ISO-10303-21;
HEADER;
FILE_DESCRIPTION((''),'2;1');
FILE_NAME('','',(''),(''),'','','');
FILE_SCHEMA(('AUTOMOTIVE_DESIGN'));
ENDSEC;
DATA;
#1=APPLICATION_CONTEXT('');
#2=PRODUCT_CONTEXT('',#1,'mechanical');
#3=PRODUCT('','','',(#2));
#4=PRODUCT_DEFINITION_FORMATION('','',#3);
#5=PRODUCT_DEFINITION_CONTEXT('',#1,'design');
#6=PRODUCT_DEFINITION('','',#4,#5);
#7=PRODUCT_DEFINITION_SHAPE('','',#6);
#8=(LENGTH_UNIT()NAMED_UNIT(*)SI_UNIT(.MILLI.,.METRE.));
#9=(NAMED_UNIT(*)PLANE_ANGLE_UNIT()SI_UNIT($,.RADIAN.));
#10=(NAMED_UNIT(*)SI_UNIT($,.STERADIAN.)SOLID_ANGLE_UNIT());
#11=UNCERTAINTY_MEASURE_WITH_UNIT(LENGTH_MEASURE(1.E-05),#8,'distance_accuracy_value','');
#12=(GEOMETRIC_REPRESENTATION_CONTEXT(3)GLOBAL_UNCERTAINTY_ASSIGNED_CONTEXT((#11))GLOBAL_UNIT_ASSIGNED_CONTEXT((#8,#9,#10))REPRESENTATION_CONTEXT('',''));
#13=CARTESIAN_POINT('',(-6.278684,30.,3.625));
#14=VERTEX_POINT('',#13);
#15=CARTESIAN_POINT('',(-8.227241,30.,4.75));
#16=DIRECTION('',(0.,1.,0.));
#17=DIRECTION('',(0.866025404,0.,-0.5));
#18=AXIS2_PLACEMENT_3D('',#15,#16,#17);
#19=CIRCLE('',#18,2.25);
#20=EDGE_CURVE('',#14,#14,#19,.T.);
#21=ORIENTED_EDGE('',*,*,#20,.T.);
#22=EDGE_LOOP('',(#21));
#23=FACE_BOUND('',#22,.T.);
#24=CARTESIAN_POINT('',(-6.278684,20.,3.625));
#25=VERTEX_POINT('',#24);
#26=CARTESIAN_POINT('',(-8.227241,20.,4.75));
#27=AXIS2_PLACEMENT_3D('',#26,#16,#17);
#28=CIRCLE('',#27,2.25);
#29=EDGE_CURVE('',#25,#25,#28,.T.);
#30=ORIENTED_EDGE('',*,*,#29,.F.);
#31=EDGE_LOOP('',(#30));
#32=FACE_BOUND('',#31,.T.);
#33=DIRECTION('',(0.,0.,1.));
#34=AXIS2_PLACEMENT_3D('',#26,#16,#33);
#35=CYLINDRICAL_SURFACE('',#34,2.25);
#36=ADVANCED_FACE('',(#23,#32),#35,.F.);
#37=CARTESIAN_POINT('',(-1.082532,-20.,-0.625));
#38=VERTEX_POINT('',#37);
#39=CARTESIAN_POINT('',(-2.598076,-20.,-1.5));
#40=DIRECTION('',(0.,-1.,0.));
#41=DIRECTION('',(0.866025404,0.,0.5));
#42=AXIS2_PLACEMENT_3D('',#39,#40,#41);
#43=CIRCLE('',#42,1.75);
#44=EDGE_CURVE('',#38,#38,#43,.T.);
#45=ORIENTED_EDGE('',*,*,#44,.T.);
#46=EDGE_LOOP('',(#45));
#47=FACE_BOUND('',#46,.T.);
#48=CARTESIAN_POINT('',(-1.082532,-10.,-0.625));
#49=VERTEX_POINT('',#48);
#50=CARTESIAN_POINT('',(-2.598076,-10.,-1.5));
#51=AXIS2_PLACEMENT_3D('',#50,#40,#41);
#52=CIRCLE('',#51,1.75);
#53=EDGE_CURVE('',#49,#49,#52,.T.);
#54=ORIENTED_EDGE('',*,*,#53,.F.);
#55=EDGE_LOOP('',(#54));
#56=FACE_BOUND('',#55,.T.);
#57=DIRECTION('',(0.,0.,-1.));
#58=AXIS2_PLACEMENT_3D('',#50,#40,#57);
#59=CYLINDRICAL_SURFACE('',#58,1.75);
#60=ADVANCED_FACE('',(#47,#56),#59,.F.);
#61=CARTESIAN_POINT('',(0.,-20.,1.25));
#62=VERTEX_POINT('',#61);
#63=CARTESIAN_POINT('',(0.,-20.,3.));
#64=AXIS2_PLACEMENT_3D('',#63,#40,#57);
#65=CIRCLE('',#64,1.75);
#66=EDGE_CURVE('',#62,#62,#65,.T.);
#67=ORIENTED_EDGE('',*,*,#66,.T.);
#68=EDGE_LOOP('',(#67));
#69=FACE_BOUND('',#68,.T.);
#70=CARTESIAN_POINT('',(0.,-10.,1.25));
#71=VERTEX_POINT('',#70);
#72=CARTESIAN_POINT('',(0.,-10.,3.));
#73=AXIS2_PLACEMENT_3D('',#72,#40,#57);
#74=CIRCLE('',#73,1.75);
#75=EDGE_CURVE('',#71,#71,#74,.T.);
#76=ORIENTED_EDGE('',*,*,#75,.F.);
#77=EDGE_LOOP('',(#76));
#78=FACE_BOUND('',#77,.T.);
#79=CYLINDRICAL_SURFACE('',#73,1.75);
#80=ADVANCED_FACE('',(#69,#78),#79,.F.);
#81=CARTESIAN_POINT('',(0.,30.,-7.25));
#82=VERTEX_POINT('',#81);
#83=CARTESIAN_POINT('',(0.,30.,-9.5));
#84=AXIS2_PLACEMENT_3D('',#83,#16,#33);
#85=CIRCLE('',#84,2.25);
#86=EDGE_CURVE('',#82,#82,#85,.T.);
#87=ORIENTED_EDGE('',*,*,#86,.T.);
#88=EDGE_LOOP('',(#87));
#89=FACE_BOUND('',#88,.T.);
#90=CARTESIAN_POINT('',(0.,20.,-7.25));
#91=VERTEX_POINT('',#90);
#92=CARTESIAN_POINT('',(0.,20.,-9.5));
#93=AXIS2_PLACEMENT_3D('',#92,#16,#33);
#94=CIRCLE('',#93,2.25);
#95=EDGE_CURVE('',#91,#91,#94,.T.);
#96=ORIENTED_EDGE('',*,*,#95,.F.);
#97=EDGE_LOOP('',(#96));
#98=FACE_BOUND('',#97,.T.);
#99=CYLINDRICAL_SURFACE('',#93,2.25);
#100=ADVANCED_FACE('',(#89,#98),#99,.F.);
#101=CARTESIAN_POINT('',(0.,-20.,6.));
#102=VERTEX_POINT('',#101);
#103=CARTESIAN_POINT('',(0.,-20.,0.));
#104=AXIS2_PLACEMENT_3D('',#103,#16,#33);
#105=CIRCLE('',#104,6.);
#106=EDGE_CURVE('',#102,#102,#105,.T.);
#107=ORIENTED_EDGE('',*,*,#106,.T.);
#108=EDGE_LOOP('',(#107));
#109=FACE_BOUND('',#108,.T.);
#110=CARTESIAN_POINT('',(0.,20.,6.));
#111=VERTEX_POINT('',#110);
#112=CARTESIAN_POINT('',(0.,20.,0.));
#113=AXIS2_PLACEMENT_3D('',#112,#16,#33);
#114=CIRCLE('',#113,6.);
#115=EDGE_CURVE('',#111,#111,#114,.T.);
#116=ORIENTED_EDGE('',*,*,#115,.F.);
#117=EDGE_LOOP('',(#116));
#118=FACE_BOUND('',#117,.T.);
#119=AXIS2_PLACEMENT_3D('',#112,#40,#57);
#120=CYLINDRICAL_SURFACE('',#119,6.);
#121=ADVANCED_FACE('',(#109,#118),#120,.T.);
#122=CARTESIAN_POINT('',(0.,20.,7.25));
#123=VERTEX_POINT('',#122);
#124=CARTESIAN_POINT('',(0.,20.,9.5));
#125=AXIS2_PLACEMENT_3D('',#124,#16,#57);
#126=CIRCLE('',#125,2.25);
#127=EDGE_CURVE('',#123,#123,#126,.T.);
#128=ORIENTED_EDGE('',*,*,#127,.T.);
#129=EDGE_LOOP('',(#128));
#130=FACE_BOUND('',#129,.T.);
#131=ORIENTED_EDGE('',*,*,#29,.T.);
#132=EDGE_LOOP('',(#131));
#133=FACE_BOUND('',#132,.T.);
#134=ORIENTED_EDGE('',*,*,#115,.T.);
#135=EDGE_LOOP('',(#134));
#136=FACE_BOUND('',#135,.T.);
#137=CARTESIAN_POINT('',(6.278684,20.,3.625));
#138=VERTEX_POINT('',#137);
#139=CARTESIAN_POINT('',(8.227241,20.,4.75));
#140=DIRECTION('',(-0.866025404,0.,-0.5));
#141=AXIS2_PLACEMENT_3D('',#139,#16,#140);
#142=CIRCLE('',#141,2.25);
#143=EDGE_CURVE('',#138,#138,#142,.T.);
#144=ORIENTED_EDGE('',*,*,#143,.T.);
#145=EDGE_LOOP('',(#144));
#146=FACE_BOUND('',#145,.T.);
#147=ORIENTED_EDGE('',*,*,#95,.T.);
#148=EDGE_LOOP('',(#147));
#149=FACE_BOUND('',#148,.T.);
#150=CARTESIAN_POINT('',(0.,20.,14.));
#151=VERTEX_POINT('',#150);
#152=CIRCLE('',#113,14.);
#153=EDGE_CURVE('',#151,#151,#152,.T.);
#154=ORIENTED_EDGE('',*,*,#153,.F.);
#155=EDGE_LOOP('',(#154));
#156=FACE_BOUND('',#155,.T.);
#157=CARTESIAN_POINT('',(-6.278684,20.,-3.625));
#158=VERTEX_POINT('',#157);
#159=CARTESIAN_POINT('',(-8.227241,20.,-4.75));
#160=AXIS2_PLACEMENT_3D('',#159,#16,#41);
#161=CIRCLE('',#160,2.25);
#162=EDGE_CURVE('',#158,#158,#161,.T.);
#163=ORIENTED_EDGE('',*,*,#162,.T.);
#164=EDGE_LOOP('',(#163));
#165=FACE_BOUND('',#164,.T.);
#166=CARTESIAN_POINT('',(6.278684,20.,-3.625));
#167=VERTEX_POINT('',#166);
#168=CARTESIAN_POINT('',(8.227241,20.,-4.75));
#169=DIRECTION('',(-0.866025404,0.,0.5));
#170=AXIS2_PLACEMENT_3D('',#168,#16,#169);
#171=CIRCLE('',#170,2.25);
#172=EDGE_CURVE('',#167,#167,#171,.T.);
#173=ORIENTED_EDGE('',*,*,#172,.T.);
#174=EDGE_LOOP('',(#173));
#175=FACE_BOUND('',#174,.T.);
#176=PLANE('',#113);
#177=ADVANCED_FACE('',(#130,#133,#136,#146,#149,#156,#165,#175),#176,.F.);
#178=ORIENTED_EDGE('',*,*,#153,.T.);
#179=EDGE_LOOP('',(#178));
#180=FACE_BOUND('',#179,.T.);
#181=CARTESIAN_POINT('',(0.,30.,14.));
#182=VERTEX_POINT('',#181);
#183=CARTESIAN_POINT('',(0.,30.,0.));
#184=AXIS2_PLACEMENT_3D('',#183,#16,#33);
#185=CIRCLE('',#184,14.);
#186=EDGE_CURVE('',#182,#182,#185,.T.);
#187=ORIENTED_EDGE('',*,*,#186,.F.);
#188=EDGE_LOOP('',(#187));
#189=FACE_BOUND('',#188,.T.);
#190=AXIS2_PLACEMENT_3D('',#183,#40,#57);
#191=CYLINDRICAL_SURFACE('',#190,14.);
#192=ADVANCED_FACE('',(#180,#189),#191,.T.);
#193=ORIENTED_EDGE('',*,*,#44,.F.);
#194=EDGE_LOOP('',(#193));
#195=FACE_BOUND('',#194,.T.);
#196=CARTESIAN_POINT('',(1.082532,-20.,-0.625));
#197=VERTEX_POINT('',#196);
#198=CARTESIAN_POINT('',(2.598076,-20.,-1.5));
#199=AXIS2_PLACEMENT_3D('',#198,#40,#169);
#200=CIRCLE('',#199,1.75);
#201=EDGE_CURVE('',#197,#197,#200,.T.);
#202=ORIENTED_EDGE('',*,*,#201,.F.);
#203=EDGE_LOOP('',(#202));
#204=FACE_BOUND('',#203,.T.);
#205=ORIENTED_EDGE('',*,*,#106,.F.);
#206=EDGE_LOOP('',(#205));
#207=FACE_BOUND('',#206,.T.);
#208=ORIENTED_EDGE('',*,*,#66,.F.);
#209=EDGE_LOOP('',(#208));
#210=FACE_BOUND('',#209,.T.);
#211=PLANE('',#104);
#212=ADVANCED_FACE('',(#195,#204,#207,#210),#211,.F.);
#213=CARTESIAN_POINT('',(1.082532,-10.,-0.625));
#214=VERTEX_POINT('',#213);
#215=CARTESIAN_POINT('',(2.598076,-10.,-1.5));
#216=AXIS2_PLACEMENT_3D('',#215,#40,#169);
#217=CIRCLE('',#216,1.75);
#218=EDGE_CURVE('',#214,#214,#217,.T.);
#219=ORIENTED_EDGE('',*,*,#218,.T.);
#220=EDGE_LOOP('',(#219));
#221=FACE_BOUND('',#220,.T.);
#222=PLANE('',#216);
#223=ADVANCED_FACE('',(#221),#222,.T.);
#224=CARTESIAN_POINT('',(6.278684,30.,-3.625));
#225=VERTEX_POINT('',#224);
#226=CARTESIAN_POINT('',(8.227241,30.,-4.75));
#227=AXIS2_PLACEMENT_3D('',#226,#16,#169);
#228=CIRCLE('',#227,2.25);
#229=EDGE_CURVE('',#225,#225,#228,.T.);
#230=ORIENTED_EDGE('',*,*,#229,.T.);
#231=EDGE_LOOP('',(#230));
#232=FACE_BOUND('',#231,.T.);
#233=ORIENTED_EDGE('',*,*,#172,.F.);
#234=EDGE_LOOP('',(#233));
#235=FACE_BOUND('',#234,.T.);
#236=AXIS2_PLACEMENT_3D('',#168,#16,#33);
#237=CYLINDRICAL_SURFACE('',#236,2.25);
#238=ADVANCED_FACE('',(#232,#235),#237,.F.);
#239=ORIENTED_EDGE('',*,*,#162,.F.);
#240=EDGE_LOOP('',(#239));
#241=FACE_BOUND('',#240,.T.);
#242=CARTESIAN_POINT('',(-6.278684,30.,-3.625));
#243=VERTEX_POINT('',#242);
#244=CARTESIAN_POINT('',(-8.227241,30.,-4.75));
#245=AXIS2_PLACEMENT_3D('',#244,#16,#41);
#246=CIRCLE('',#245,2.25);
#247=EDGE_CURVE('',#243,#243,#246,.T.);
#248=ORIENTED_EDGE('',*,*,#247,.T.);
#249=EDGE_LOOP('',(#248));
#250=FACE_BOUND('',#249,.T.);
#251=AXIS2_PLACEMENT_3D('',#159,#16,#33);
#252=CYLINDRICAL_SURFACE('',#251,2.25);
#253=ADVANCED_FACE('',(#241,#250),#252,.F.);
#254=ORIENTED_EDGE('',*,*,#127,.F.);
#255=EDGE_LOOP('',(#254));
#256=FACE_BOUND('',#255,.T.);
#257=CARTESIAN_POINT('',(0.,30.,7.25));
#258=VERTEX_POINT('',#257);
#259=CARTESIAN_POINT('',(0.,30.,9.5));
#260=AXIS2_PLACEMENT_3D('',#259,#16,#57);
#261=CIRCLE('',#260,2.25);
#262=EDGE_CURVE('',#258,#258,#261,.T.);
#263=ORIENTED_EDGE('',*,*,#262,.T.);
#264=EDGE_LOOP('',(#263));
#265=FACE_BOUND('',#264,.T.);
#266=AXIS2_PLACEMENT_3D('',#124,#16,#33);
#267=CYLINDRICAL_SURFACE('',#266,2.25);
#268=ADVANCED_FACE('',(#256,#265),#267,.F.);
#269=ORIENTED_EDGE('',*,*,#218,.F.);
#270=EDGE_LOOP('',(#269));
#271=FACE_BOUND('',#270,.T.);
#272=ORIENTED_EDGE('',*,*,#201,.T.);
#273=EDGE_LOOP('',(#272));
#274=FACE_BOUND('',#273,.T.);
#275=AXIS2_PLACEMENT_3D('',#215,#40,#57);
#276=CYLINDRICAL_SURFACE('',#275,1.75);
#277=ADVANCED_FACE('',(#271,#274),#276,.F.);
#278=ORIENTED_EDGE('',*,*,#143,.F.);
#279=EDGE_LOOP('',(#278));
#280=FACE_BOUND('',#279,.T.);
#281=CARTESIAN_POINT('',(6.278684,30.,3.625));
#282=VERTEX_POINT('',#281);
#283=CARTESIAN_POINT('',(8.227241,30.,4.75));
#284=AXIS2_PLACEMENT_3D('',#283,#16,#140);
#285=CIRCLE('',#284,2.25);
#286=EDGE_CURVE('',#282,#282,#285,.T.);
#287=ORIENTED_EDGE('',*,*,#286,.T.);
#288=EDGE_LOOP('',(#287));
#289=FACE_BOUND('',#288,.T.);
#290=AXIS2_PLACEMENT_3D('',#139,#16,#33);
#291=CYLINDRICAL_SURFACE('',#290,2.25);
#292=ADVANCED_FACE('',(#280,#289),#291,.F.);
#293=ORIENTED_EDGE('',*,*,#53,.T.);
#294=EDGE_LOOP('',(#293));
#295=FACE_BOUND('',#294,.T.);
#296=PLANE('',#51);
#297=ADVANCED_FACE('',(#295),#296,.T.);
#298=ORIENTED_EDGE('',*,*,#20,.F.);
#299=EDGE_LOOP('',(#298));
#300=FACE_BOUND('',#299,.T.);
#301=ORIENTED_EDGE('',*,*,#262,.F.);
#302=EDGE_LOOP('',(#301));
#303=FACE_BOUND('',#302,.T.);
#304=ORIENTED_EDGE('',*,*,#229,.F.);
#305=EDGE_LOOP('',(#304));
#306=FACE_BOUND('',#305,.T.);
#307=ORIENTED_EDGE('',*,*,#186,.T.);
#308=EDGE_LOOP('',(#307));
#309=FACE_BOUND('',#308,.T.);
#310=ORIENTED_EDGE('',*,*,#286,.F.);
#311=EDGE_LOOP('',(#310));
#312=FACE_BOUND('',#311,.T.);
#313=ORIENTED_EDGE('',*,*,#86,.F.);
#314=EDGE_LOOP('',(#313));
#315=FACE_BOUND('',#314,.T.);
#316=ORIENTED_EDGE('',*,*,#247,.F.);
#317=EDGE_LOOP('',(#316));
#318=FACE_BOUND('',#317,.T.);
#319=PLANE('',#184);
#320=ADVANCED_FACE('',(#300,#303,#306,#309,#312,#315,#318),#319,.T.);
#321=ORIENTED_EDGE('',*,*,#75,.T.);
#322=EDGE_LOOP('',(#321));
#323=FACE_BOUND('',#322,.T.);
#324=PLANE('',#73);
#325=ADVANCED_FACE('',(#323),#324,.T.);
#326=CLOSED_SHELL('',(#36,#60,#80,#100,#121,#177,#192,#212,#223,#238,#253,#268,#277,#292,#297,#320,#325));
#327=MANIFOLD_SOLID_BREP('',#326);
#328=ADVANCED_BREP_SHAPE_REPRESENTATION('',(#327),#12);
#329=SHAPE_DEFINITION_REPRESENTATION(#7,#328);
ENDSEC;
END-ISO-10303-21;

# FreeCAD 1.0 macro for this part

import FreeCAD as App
import Part
import Sketcher

doc = App.newDocument("Part")
body = doc.addObject("PartDesign::Body", "Body")

sketch1 = doc.addObject("Sketcher::SketchObject", "Sketch")
body.addObject(sketch1)
sketch1.AttachmentSupport = (doc.XZ_Plane, [""])
sketch1.MapMode = "FlatFace"
sketch1.addGeometry(Part.Circle(App.Vector(0, 0, 0), App.Vector(0, 0, 1), 6), False)
sketch1.addConstraint([
    Sketcher.Constraint("Coincident", 0, 3, -1, 1),
    Sketcher.Constraint("Diameter", 0, 12.0),
])
pad1 = doc.addObject("PartDesign::Pad", "Pad")
body.addObject(pad1)
pad1.Profile = sketch1
pad1.Length = 40
pad1.Midplane = True

sketch2 = doc.addObject("Sketcher::SketchObject", "Sketch001")
body.addObject(sketch2)
sketch2.AttachmentSupport = (doc.XZ_Plane, [""])
sketch2.MapMode = "FlatFace"
sketch2.AttachmentOffset = App.Placement(App.Vector(0, 0, -20), App.Rotation())
sketch2.addGeometry(Part.Circle(App.Vector(0, 0, 0), App.Vector(0, 0, 1), 14), False)
sketch2.addConstraint([
    Sketcher.Constraint("Coincident", 0, 3, -1, 1),
    Sketcher.Constraint("Diameter", 0, 28.0),
])
pad2 = doc.addObject("PartDesign::Pad", "Pad001")
body.addObject(pad2)
pad2.Profile = sketch2
pad2.Length = 10
pad2.Reversed = True

sketch3 = doc.addObject("Sketcher::SketchObject", "Sketch002")
body.addObject(sketch3)
sketch3.AttachmentSupport = (doc.XZ_Plane, [""])
sketch3.MapMode = "FlatFace"
sketch3.AttachmentOffset = App.Placement(App.Vector(0, 0, -30), App.Rotation())
sketch3.addGeometry(Part.Circle(App.Vector(0, -9.5, 0), App.Vector(0, 0, 1), 2.2), False)
sketch3.addConstraint([
    Sketcher.Constraint("PointOnObject", 0, 3, -2),
    Sketcher.Constraint("Diameter", 0, 4.5),
    Sketcher.Constraint("DistanceY", 0, 3, -1, 1, 9.5),
])
pocket1 = doc.addObject("PartDesign::Pocket", "Pocket")
body.addObject(pocket1)
pocket1.Profile = sketch3
pocket1.Length = 10
pocket1.Reversed = True
doc.recompute()

polarpattern = doc.addObject("PartDesign::PolarPattern", "PolarPattern")
body.addObject(polarpattern)
polarpattern.Originals = [pocket1]
polarpattern.Axis = (doc.Y_Axis, [""])
polarpattern.Angle = 360
polarpattern.Occurrences = 6
body.Tip = polarpattern

sketch4 = doc.addObject("Sketcher::SketchObject", "Sketch003")
body.addObject(sketch4)
sketch4.AttachmentSupport = (doc.XZ_Plane, [""])
sketch4.MapMode = "FlatFace"
sketch4.AttachmentOffset = App.Placement(App.Vector(0, 0, 20), App.Rotation())
sketch4.addGeometry(Part.Circle(App.Vector(0, 3, 0), App.Vector(0, 0, 1), 1.8), False)
sketch4.addConstraint([
    Sketcher.Constraint("PointOnObject", 0, 3, -2),
    Sketcher.Constraint("Diameter", 0, 3.5),
    Sketcher.Constraint("DistanceY", -1, 1, 0, 3, 3.0),
])
pocket2 = doc.addObject("PartDesign::Pocket", "Pocket001")
body.addObject(pocket2)
pocket2.Profile = sketch4
pocket2.Length = 10
doc.recompute()

polarpattern2 = doc.addObject("PartDesign::PolarPattern", "PolarPattern001")
body.addObject(polarpattern2)
polarpattern2.Originals = [pocket2]
polarpattern2.Axis = (doc.Y_Axis, [""])
polarpattern2.Angle = 360
polarpattern2.Occurrences = 3
body.Tip = polarpattern2

doc.recompute()
